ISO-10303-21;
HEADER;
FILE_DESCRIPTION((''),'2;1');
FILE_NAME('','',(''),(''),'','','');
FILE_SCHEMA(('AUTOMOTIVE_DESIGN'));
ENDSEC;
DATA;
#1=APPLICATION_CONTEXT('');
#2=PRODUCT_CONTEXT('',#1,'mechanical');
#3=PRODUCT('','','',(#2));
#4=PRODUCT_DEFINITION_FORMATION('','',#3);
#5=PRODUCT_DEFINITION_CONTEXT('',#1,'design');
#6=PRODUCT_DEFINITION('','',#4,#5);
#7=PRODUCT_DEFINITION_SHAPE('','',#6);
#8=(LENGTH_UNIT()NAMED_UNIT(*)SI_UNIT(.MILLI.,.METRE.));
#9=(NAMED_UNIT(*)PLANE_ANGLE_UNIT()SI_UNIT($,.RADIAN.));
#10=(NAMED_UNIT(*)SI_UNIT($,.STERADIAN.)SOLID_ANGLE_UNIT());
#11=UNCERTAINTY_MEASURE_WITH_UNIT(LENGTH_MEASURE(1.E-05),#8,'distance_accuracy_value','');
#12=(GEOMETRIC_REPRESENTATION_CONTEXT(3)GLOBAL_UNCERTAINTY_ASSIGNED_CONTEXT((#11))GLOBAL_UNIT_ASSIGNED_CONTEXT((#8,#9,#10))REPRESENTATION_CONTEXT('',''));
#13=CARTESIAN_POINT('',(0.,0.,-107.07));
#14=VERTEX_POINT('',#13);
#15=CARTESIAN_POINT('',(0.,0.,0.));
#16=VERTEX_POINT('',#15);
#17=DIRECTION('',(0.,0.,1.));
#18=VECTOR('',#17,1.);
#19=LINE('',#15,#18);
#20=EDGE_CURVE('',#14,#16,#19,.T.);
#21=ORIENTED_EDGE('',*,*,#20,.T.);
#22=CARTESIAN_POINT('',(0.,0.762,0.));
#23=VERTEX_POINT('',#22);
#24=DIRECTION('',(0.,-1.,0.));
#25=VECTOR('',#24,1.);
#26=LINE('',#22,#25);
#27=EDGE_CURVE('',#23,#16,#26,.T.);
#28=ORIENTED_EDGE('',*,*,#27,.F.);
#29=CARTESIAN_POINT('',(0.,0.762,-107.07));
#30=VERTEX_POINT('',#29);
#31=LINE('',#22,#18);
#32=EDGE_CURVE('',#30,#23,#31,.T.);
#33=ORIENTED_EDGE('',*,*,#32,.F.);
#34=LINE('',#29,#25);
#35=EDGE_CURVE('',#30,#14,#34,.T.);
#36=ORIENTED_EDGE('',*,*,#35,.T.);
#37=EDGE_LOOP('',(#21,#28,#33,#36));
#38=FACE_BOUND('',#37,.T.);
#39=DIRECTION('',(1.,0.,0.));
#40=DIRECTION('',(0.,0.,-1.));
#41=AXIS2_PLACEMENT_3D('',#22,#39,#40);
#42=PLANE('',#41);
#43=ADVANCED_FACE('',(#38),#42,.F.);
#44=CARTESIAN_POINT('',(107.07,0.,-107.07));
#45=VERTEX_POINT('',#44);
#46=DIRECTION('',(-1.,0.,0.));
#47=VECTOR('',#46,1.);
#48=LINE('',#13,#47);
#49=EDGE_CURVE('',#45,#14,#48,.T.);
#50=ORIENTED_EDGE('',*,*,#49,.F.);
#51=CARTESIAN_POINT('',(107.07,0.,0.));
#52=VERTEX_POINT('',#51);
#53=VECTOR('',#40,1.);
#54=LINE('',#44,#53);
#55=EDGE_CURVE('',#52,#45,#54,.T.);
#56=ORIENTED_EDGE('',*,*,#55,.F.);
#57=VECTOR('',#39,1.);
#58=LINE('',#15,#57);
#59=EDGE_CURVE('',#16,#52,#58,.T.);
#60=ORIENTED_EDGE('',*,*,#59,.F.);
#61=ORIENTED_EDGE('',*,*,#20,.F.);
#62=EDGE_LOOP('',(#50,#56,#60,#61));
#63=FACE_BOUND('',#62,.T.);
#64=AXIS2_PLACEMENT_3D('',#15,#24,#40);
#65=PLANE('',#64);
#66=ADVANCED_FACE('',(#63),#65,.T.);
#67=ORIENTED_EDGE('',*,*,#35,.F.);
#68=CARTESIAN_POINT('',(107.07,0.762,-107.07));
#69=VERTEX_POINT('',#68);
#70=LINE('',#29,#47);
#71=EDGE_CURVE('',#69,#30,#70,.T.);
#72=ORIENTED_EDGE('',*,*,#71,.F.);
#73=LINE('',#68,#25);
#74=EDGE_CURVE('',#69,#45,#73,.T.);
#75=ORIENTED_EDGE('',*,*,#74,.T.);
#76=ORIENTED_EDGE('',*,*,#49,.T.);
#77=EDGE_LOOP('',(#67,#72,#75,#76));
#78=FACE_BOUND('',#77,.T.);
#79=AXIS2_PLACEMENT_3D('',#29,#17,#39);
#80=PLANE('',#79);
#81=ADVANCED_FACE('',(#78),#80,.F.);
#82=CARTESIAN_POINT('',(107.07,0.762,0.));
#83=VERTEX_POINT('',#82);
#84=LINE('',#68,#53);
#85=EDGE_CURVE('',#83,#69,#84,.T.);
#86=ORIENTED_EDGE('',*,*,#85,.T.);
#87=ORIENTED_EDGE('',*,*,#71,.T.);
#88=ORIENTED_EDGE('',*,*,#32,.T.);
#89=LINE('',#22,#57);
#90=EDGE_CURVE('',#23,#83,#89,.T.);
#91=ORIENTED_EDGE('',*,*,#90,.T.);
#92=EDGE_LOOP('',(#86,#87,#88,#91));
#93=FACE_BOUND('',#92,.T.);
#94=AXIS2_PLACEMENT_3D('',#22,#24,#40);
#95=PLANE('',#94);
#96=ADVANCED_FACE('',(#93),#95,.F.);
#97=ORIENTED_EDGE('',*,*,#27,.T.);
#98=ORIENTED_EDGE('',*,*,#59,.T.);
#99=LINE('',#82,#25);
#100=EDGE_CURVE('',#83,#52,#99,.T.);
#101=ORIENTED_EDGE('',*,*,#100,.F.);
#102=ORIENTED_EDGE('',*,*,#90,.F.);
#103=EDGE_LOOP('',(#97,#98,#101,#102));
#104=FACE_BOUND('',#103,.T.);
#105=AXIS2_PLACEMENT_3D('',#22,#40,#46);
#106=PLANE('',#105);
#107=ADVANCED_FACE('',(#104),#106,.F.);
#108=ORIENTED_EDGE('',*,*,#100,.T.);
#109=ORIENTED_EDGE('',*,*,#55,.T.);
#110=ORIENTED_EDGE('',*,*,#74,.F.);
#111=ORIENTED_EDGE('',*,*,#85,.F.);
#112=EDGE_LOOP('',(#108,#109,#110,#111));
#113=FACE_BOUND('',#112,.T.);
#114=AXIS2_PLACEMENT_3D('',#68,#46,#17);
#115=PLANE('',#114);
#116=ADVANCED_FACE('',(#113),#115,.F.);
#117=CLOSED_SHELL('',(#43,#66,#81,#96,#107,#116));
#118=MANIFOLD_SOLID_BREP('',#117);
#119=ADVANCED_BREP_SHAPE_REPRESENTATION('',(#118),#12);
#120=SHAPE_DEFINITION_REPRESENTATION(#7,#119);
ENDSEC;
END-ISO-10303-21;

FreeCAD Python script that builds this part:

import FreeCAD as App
import Part
import Sketcher
from FreeCAD import Vector
Q = App.Units.Quantity


def add_polygon(sketch, points):
    """Adds a closed chain of lines whose ends are joined by coincident constraints."""
    first, n = sketch.GeometryCount, len(points)
    for a, b in zip(points, points[1:] + points[:1]):
        sketch.addGeometry(Part.LineSegment(App.Vector(*a, 0), App.Vector(*b, 0)), False)
    for i in range(n):
        sketch.addConstraint(Sketcher.Constraint("Coincident", first + i, 2, first + (i + 1) % n, 1))

doc = App.newDocument("Part")
body = doc.addObject("PartDesign::Body", "Body")

# Sketch on XZ plane
sketch1 = body.newObject("Sketcher::SketchObject", "Sketch")
sketch1.AttachmentSupport = (doc.getObject("XZ_Plane"), [""])
sketch1.MapMode = "FlatFace"
add_polygon(sketch1, [(0, -107), (0, 0), (107, 0), (107, -107)])  # lines 0-3
sketch1.addConstraint(Sketcher.Constraint("Vertical", 0))
sketch1.addConstraint(Sketcher.Constraint("Horizontal", 1))
sketch1.addConstraint(Sketcher.Constraint("Vertical", 2))
sketch1.addConstraint(Sketcher.Constraint("Horizontal", 3))
sketch1.addConstraint(Sketcher.Constraint("Coincident", 0, 2, -1, 1))
sketch1.addConstraint(Sketcher.Constraint("Equal", 3, 0))
sketch1.addConstraint(Sketcher.Constraint("DistanceX", 1, 1, 1, 2, Q("107.07 mm")))
pad1 = body.newObject("PartDesign::Pad", "Pad")
pad1.Profile = sketch1
pad1.Length = Q("0.03 in")
pad1.Reversed = True

doc.recompute()
